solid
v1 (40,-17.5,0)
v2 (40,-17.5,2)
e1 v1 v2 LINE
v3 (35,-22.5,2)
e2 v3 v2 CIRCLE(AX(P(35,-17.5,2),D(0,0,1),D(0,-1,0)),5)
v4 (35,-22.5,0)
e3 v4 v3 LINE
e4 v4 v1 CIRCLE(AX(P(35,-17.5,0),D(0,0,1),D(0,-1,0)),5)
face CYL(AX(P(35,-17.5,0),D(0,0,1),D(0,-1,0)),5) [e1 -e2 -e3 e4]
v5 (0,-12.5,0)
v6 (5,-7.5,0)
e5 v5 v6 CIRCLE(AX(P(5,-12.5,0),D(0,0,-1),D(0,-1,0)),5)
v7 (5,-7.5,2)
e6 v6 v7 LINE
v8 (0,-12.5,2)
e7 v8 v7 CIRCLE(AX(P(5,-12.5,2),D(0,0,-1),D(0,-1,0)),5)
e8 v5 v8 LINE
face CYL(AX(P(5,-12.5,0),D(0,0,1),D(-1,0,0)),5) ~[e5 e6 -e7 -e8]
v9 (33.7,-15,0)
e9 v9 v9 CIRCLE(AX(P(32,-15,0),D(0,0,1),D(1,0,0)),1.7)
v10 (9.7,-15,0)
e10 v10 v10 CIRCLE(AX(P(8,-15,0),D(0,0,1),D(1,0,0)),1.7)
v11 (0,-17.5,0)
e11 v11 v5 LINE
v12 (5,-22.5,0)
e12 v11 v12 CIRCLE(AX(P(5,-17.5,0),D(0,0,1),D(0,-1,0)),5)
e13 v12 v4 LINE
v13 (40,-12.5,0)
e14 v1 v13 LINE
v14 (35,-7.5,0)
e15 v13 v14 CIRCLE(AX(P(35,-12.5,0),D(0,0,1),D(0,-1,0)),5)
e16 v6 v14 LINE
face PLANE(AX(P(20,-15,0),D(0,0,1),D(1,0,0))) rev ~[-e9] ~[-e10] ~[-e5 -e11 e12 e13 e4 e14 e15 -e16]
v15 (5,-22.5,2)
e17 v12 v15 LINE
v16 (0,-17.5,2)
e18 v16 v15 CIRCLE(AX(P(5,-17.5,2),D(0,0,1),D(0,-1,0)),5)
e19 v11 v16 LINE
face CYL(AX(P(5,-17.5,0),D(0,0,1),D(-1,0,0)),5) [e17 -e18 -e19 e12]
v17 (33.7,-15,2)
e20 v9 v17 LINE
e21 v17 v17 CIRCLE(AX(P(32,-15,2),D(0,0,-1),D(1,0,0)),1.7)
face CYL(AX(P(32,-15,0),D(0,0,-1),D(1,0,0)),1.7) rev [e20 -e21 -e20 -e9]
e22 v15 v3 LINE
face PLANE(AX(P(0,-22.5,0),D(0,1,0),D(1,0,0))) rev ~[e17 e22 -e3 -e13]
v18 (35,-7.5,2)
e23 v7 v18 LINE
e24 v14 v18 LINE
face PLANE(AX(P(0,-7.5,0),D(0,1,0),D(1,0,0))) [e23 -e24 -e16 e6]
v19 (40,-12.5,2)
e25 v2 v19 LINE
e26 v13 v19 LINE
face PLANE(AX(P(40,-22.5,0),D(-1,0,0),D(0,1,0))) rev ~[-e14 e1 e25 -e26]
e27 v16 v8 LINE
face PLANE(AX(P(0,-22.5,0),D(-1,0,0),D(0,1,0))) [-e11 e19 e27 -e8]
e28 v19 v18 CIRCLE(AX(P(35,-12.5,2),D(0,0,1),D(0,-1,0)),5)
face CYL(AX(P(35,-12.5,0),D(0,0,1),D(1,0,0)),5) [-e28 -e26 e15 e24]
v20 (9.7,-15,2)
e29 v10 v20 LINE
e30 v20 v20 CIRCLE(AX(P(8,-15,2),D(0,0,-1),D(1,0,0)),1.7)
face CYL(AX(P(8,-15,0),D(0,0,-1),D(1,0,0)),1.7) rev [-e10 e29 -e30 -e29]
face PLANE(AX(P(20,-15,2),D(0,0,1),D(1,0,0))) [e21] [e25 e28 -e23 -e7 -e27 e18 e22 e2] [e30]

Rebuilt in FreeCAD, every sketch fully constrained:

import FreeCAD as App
import Part
import Sketcher
Q = App.Units.Quantity


def edges_at(feature, points):
    """Names of the edges that pass closest to the given points."""
    edges = feature.Shape.Edges
    near = lambda p: min(range(len(edges)), key=lambda i: edges[i].distToShape(Part.Vertex(*p))[0])
    return sorted({f"Edge{near(p) + 1}" for p in points})

doc = App.newDocument("Part")
body = doc.addObject("PartDesign::Body", "Body")

# Sketch on XY plane
sketch1 = body.newObject("Sketcher::SketchObject", "Sketch")
sketch1.AttachmentSupport = (doc.getObject("XY_Plane"), [""])
sketch1.MapMode = "FlatFace"
sketch1.addGeometry(Part.Circle(App.Vector(32, 0, 0), App.Vector(0, 0, 1), 1.7), False)
sketch1.addConstraint(Sketcher.Constraint("PointOnObject", 0, 3, -1))
sketch1.addConstraint(Sketcher.Constraint("Diameter", 0, Q("3.4 mm")))
sketch1.addConstraint(Sketcher.Constraint("DistanceX", -1, 1, 0, 3, Q("32 mm")))
pad1 = body.newObject("PartDesign::Pad", "Pad")
pad1.Profile = sketch1
pad1.Length = 10
body2 = doc.addObject("PartDesign::Body", "Body001")

# Sketch on XY plane
sketch2 = body2.newObject("Sketcher::SketchObject", "Sketch001")
sketch2.AttachmentSupport = (doc.getObject("XY_Plane001"), [""])
sketch2.MapMode = "FlatFace"
sketch2.addGeometry(Part.Circle(App.Vector(8, 0, 0), App.Vector(0, 0, 1), 1.7), False)
sketch2.addConstraint(Sketcher.Constraint("PointOnObject", 0, 3, -1))
sketch2.addConstraint(Sketcher.Constraint("Diameter", 0, Q("3.4 mm")))
sketch2.addConstraint(Sketcher.Constraint("DistanceX", -1, 1, 0, 3, Q("8 mm")))
pad2 = body2.newObject("PartDesign::Pad", "Pad001")
pad2.Profile = sketch2
pad2.Length = 10
body3 = doc.addObject("PartDesign::Body", "Body002")

# Sketch on XY plane
sketch3 = body3.newObject("Sketcher::SketchObject", "Sketch002")
sketch3.AttachmentSupport = (doc.getObject("XY_Plane002"), [""])
sketch3.MapMode = "FlatFace"
sketch3.addGeometry(Part.LineSegment(App.Vector(0, 15, 0), App.Vector(0, 0, 0)), False)
sketch3.addGeometry(Part.LineSegment(App.Vector(0, 0, 0), App.Vector(40, 0, 0)), False)
sketch3.addGeometry(Part.LineSegment(App.Vector(40, 0, 0), App.Vector(40, 15, 0)), False)
sketch3.addGeometry(Part.LineSegment(App.Vector(40, 15, 0), App.Vector(0, 15, 0)), False)
sketch3.addConstraint(Sketcher.Constraint("Coincident", 0, 2, 1, 1))
sketch3.addConstraint(Sketcher.Constraint("Coincident", 1, 2, 2, 1))
sketch3.addConstraint(Sketcher.Constraint("Coincident", 2, 2, 3, 1))
sketch3.addConstraint(Sketcher.Constraint("Coincident", 3, 2, 0, 1))
sketch3.addConstraint(Sketcher.Constraint("Vertical", 0))
sketch3.addConstraint(Sketcher.Constraint("Horizontal", 1))
sketch3.addConstraint(Sketcher.Constraint("Vertical", 2))
sketch3.addConstraint(Sketcher.Constraint("Horizontal", 3))
sketch3.addConstraint(Sketcher.Constraint("Coincident", 0, 2, -1, 1))
sketch3.addConstraint(Sketcher.Constraint("DistanceX", 1, 1, 1, 2, Q("40 mm")))
sketch3.addConstraint(Sketcher.Constraint("DistanceY", 0, 2, 0, 1, Q("15 mm")))
pad3 = body3.newObject("PartDesign::Pad", "Pad002")
pad3.Profile = sketch3
pad3.Length = 2
doc.recompute()

fillet = body3.newObject("PartDesign::Fillet", "Fillet")
fillet.Base = (pad3, edges_at(pad3, [
    (0, 0, 1),
    (0, 15, 1),
    (40, 0, 1),
    (40, 15, 1),
]))
fillet.Radius = 5
body4 = doc.addObject("PartDesign::Body", "Body003")
doc.recompute()

body3.Placement = App.Placement(App.Vector(0, -7.5, 0), App.Rotation(App.Vector(0, 0, 1), 0))
boolean = body4.newObject("PartDesign::Boolean", "Boolean")
boolean.Type = "Fuse"
boolean.addObjects([body3])
doc.recompute()

boolean2 = body4.newObject("PartDesign::Boolean", "Boolean001")
boolean2.Type = "Cut"
boolean2.addObjects([body2])
doc.recompute()

boolean3 = body4.newObject("PartDesign::Boolean", "Boolean002")
boolean3.Type = "Cut"
boolean3.addObjects([body])
body5 = doc.addObject("PartDesign::Body", "Body004")
doc.recompute()

body4.Placement = App.Placement(App.Vector(0, -15, 0), App.Rotation(App.Vector(0, 0, 1), 0))
boolean4 = body5.newObject("PartDesign::Boolean", "Boolean003")
boolean4.Type = "Fuse"
boolean4.addObjects([body4])

doc.recompute()
